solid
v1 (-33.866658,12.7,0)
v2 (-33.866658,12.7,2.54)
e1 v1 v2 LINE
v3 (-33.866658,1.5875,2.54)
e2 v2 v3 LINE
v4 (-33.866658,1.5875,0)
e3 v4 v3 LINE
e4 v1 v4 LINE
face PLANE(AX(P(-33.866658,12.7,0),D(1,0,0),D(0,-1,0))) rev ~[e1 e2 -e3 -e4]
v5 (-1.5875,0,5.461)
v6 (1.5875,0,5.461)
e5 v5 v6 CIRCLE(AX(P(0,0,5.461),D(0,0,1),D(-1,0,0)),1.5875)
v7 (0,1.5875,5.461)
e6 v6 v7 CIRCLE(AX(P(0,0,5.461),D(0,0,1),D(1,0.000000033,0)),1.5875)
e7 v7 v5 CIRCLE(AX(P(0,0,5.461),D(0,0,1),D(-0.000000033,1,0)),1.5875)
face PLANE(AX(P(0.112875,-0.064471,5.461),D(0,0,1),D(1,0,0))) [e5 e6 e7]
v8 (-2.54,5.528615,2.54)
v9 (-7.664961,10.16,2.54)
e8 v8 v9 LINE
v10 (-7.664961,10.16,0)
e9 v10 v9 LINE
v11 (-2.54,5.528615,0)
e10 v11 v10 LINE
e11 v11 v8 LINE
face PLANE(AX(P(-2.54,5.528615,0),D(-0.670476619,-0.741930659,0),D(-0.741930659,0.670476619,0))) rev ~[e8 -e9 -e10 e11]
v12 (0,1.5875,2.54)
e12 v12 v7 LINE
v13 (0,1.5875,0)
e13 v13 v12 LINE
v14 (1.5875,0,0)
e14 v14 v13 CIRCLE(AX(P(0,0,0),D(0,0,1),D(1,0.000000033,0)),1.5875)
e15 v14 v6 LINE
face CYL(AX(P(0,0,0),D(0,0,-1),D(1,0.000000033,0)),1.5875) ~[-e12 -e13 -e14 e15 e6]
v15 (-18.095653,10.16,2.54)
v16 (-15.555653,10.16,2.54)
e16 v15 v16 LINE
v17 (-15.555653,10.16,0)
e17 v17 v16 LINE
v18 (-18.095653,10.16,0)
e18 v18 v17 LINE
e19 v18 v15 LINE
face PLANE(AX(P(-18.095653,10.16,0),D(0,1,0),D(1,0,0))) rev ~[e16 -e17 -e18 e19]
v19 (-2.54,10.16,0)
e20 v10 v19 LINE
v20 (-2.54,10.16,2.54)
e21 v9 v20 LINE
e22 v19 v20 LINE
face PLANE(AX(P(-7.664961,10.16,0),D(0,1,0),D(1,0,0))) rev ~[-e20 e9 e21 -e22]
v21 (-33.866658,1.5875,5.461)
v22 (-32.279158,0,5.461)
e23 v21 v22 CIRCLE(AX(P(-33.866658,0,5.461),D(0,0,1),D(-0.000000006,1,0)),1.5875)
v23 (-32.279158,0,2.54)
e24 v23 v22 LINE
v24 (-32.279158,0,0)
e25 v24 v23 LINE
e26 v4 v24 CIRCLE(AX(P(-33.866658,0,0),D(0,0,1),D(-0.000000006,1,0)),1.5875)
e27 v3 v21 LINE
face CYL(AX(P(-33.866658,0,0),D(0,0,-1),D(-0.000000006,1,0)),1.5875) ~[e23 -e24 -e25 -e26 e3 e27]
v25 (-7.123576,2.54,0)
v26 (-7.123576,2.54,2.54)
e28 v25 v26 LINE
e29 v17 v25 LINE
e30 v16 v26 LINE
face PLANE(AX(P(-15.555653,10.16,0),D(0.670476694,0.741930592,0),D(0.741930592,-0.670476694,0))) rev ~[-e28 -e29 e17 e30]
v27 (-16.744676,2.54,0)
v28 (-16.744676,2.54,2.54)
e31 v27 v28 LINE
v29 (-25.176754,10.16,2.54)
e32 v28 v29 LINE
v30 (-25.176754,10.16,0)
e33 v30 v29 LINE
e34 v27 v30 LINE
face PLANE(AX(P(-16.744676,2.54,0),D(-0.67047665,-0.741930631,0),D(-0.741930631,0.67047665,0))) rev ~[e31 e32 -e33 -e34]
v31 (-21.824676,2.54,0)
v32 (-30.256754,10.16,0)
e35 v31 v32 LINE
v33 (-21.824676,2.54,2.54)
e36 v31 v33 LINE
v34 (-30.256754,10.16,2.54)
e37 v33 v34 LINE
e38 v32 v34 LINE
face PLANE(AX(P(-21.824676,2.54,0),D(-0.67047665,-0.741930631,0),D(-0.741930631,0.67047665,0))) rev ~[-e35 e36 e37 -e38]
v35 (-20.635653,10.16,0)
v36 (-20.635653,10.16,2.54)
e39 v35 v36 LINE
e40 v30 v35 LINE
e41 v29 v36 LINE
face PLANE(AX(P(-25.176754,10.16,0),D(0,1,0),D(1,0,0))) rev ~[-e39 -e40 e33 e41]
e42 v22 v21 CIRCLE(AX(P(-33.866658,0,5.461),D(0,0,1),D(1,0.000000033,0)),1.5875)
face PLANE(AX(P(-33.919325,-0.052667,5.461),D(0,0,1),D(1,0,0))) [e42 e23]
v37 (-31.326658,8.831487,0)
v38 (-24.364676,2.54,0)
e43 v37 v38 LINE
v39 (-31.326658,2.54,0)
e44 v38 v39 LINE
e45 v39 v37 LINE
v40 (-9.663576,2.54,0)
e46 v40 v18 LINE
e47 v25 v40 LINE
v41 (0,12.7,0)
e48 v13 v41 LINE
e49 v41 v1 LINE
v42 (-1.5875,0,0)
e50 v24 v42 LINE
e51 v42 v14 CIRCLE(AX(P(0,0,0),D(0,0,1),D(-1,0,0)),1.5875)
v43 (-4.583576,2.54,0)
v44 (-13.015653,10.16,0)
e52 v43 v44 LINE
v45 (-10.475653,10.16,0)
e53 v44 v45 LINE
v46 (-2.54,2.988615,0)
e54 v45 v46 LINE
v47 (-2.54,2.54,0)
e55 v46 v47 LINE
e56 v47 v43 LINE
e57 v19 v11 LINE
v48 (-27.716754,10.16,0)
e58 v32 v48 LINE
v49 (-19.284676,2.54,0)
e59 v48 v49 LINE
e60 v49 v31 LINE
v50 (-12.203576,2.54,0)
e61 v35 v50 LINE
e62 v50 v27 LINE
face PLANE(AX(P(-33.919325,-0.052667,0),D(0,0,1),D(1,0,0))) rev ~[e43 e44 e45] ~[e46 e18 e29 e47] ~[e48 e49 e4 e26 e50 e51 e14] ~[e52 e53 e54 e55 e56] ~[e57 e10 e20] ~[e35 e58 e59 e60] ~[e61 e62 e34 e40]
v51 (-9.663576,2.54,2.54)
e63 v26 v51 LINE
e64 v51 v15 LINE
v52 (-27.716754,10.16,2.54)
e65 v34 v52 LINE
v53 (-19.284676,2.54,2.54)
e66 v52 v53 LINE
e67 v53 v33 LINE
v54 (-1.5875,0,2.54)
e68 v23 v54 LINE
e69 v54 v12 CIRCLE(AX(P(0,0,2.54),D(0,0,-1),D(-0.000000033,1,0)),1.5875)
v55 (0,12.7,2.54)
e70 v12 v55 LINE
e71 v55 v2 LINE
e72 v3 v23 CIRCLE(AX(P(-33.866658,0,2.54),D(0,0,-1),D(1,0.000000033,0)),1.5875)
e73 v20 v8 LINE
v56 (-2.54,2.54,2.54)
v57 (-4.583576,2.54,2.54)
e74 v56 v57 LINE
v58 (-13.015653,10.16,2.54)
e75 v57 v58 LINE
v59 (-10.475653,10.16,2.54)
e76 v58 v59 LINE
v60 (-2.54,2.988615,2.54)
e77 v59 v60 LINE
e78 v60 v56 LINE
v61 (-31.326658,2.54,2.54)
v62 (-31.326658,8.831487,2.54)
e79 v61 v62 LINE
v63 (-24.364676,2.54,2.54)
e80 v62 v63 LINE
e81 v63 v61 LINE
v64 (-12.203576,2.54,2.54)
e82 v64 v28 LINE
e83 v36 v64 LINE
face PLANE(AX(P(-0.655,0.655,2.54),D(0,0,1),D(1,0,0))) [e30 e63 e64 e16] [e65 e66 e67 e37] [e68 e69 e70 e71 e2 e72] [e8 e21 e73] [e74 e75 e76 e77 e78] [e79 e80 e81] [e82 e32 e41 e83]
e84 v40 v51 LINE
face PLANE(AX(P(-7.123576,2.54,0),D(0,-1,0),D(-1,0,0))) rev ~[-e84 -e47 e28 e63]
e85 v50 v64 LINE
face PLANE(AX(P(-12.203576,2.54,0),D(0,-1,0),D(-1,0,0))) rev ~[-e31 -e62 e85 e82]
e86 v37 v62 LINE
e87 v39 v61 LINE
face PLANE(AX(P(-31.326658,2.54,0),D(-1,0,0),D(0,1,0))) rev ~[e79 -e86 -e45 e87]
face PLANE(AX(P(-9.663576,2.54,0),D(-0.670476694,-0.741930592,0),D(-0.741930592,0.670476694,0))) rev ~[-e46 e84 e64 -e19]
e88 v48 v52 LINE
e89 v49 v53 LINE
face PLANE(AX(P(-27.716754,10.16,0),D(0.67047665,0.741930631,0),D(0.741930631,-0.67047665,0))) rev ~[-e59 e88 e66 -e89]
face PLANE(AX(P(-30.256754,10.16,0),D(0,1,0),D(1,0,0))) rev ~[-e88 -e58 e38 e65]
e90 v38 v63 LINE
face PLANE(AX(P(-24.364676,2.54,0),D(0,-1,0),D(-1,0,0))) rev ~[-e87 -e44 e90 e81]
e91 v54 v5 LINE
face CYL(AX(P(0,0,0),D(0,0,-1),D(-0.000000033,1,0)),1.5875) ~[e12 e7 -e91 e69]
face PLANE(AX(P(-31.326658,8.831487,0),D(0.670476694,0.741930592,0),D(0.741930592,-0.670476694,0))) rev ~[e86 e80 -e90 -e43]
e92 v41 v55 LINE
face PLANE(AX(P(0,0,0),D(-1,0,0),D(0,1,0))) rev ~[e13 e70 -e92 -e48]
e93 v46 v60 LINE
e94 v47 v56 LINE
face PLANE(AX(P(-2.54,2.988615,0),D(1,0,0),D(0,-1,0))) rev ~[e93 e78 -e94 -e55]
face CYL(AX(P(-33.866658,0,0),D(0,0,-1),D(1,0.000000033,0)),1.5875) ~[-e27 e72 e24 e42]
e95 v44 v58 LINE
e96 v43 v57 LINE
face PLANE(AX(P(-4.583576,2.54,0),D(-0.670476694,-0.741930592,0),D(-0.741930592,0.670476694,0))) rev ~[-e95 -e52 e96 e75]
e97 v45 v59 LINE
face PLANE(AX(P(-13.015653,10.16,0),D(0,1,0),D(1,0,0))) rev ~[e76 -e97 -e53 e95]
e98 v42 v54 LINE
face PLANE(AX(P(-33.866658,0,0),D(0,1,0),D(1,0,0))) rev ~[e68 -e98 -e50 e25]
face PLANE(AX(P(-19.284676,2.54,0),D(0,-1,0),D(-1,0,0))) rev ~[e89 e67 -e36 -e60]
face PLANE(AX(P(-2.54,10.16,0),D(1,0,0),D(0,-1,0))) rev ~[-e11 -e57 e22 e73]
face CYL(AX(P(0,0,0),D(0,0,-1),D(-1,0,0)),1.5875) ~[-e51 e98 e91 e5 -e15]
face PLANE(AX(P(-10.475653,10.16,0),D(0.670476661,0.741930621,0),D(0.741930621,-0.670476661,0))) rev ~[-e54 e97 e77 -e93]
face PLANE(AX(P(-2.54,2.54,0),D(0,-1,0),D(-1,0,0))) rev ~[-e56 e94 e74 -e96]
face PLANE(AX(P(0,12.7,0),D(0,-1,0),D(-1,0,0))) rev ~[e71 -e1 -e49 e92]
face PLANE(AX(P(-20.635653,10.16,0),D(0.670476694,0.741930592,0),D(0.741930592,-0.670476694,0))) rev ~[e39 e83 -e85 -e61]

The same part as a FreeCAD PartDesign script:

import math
import FreeCAD as App
import Part
import Sketcher
Q = App.Units.Quantity

doc = App.newDocument("Part")
body = doc.addObject("PartDesign::Body", "Body")

# Sketch on XY plane
sketch1 = body.newObject("Sketcher::SketchObject", "Sketch")
sketch1.AttachmentSupport = (doc.getObject("XY_Plane"), [""])
sketch1.MapMode = "FlatFace"
sketch1.addGeometry([
    Part.LineSegment(App.Vector(0, 0, 0), App.Vector(0, 12.7, 0)),  # 0
    Part.LineSegment(App.Vector(0, 12.7, 0), App.Vector(-33.866658, 12.7, 0)),  # 1
    Part.LineSegment(App.Vector(-33.866658, 12.7, 0), App.Vector(-33.866658, 0, 0)),  # 2
    Part.LineSegment(App.Vector(-33.866658, 0, 0), App.Vector(0, 0, 0)),  # 3
    Part.LineSegment(App.Vector(-30.256754, 10.16, 0), App.Vector(-27.716754, 10.16, 0)),  # 4
    Part.LineSegment(App.Vector(-27.716754, 10.16, 0), App.Vector(-19.284676, 2.54, 0)),  # 5
    Part.LineSegment(App.Vector(-19.284676, 2.54, 0), App.Vector(-21.824676, 2.54, 0)),  # 6
    Part.LineSegment(App.Vector(-21.824676, 2.54, 0), App.Vector(-30.256754, 10.16, 0)),  # 7
    Part.LineSegment(App.Vector(-24.364676, 2.54, 0), App.Vector(-31.326658, 2.54, 0)),  # 8
    Part.LineSegment(App.Vector(-31.326658, 2.54, 0), App.Vector(-31.326658, 8.831487, 0)),  # 9
    Part.LineSegment(App.Vector(-31.326658, 8.831487, 0), App.Vector(-24.364676, 2.54, 0)),  # 10
    Part.LineSegment(App.Vector(-25.176754, 10.16, 0), App.Vector(-20.635653, 10.16, 0)),  # 11
    Part.LineSegment(App.Vector(-20.635653, 10.16, 0), App.Vector(-12.203576, 2.54, 0)),  # 12
    Part.LineSegment(App.Vector(-12.203576, 2.54, 0), App.Vector(-16.744676, 2.54, 0)),  # 13
    Part.LineSegment(App.Vector(-16.744676, 2.54, 0), App.Vector(-25.176754, 10.16, 0)),  # 14
    Part.LineSegment(App.Vector(-18.095653, 10.16, 0), App.Vector(-15.555653, 10.16, 0)),  # 15
    Part.LineSegment(App.Vector(-15.555653, 10.16, 0), App.Vector(-7.123576, 2.54, 0)),  # 16
    Part.LineSegment(App.Vector(-7.123576, 2.54, 0), App.Vector(-9.663576, 2.54, 0)),  # 17
    Part.LineSegment(App.Vector(-9.663576, 2.54, 0), App.Vector(-18.095653, 10.16, 0)),  # 18
    Part.LineSegment(App.Vector(-13.015653, 10.16, 0), App.Vector(-10.475653, 10.16, 0)),  # 19
    Part.LineSegment(App.Vector(-10.475653, 10.16, 0), App.Vector(-2.54, 2.988615, 0)),  # 20
    Part.LineSegment(App.Vector(-2.54, 2.988615, 0), App.Vector(-2.54, 2.54, 0)),  # 21
    Part.LineSegment(App.Vector(-2.54, 2.54, 0), App.Vector(-4.583576, 2.54, 0)),  # 22
    Part.LineSegment(App.Vector(-4.583576, 2.54, 0), App.Vector(-13.015653, 10.16, 0)),  # 23
    Part.LineSegment(App.Vector(-7.664961, 10.16, 0), App.Vector(-2.54, 10.16, 0)),  # 24
    Part.LineSegment(App.Vector(-2.54, 10.16, 0), App.Vector(-2.54, 5.528615, 0)),  # 25
    Part.LineSegment(App.Vector(-2.54, 5.528615, 0), App.Vector(-7.664961, 10.16, 0)),  # 26
], False)
sketch1.addConstraint([
    Sketcher.Constraint("Coincident", 0, 2, 1, 1),
    Sketcher.Constraint("Coincident", 1, 2, 2, 1),
    Sketcher.Constraint("Coincident", 2, 2, 3, 1),
    Sketcher.Constraint("Coincident", 3, 2, 0, 1),
    Sketcher.Constraint("Coincident", 4, 2, 5, 1),
    Sketcher.Constraint("Coincident", 5, 2, 6, 1),
    Sketcher.Constraint("Coincident", 6, 2, 7, 1),
    Sketcher.Constraint("Coincident", 7, 2, 4, 1),
    Sketcher.Constraint("Coincident", 8, 2, 9, 1),
    Sketcher.Constraint("Coincident", 9, 2, 10, 1),
    Sketcher.Constraint("Coincident", 10, 2, 8, 1),
    Sketcher.Constraint("Coincident", 11, 2, 12, 1),
    Sketcher.Constraint("Coincident", 12, 2, 13, 1),
    Sketcher.Constraint("Coincident", 13, 2, 14, 1),
    Sketcher.Constraint("Coincident", 14, 2, 11, 1),
    Sketcher.Constraint("Coincident", 15, 2, 16, 1),
    Sketcher.Constraint("Coincident", 16, 2, 17, 1),
    Sketcher.Constraint("Coincident", 17, 2, 18, 1),
    Sketcher.Constraint("Coincident", 18, 2, 15, 1),
    Sketcher.Constraint("Coincident", 19, 2, 20, 1),
    Sketcher.Constraint("Coincident", 20, 2, 21, 1),
    Sketcher.Constraint("Coincident", 21, 2, 22, 1),
    Sketcher.Constraint("Coincident", 22, 2, 23, 1),
    Sketcher.Constraint("Coincident", 23, 2, 19, 1),
    Sketcher.Constraint("Coincident", 24, 2, 25, 1),
    Sketcher.Constraint("Coincident", 25, 2, 26, 1),
    Sketcher.Constraint("Coincident", 26, 2, 24, 1),
    Sketcher.Constraint("Vertical", 0),
    Sketcher.Constraint("Horizontal", 1),
    Sketcher.Constraint("Vertical", 2),
    Sketcher.Constraint("Horizontal", 3),
    Sketcher.Constraint("Horizontal", 4),
    Sketcher.Constraint("Horizontal", 6),
    Sketcher.Constraint("Horizontal", 8),
    Sketcher.Constraint("Vertical", 9),
    Sketcher.Constraint("Horizontal", 11),
    Sketcher.Constraint("Horizontal", 13),
    Sketcher.Constraint("Horizontal", 15),
    Sketcher.Constraint("Horizontal", 17),
    Sketcher.Constraint("Horizontal", 19),
    Sketcher.Constraint("Vertical", 21),
    Sketcher.Constraint("Horizontal", 22),
    Sketcher.Constraint("Horizontal", 24),
    Sketcher.Constraint("Vertical", 25),
    Sketcher.Constraint("Coincident", 3, 2, -1, 1),
    Sketcher.Constraint("Parallel", 5, 7),
    Sketcher.Constraint("Parallel", 7, 10),
    Sketcher.Constraint("Parallel", 10, 12),
    Sketcher.Constraint("Parallel", 12, 14),
    Sketcher.Constraint("Parallel", 14, 16),
    Sketcher.Constraint("Parallel", 16, 18),
    Sketcher.Constraint("Parallel", 18, 20),
    Sketcher.Constraint("Parallel", 20, 23),
    Sketcher.Constraint("Parallel", 23, 26),
    Sketcher.Constraint("Horizontal", 6, 2, 8, 2),
    Sketcher.Constraint("Horizontal", 7, 2, 11, 2),
    Sketcher.Constraint("Horizontal", 10, 2, 12, 2),
    Sketcher.Constraint("Horizontal", 14, 2, 15, 2),
    Sketcher.Constraint("Horizontal", 13, 2, 16, 2),
    Sketcher.Constraint("Horizontal", 18, 2, 19, 2),
    Sketcher.Constraint("Horizontal", 17, 2, 21, 2),
    Sketcher.Constraint("Horizontal", 23, 2, 24, 2),
    Sketcher.Constraint("Vertical", 21, 2, 24, 2),
    Sketcher.Constraint("Equal", 6, 15),
    Sketcher.Constraint("Equal", 17, 19),
    Sketcher.Constraint("DistanceX", 4, 1, 4, 2, Q("0.1 in")),
    Sketcher.Constraint("DistanceY", 0, 1, 0, 2, Q("0.5 in")),
    Sketcher.Constraint("DistanceY", -1, 1, 4, 2, Q("0.4 in")),
    Sketcher.Constraint("DistanceY", -1, 1, 5, 2, Q("0.1 in")),
    Sketcher.Constraint("DistanceX", 20, 2, -1, 1, Q("0.1 in")),
    Sketcher.Constraint("DistanceX", 2, 2, 8, 2, Q("0.1 in")),
    Sketcher.Constraint("DistanceX", 10, 2, 6, 2, Q("0.1 in")),
    Sketcher.Constraint("DistanceX", 5, 2, 13, 2, Q("0.1 in")),
    Sketcher.Constraint("DistanceX", 11, 2, 15, 2, Q("0.2 in")),
    Sketcher.Constraint("DistanceX", 15, 2, 19, 2, Q("0.2 in")),
    Sketcher.Constraint("DistanceY", 20, 2, 25, 2, Q("0.1 in")),
    Sketcher.Constraint("DistanceX", 11, 1, 11, 2, 4.541101),
    Sketcher.Constraint("Distance", 26, 6.907601),
    Sketcher.Constraint("DistanceX", 8, 2, 8, 1, 6.961982),
    Sketcher.Constraint("DistanceX", 24, 1, 24, 2, 5.124961),
])
pad1 = body.newObject("PartDesign::Pad", "Pad")
pad1.Profile = sketch1
pad1.Length = Q("0.1 in")

# Sketch on XY plane
sketch2 = body.newObject("Sketcher::SketchObject", "Sketch001")
sketch2.AttachmentSupport = (doc.getObject("XY_Plane"), [""])
sketch2.MapMode = "FlatFace"
sketch2.addGeometry([
    Part.ArcOfCircle(Part.Circle(App.Vector(-33.866658, 0, 0), App.Vector(0, 0, 1), 1.5875), math.radians(90), math.radians(360)),  # 0
    Part.ArcOfCircle(Part.Circle(App.Vector(-33.866658, 0, 0), App.Vector(0, 0, 1), 1.5875), math.radians(0.000002), math.radians(89.999998)),  # 1
    Part.ArcOfCircle(Part.Circle(App.Vector(0, 0, 0), App.Vector(0, 0, 1), 1.5875), math.radians(0.000002), math.radians(89.999998)),  # 2
    Part.ArcOfCircle(Part.Circle(App.Vector(0, 0, 0), App.Vector(0, 0, 1), 1.5875), math.radians(90.000002), math.radians(179.999998)),  # 3
    Part.ArcOfCircle(Part.Circle(App.Vector(0, 0, 0), App.Vector(0, 0, 1), 1.5875), math.radians(180), math.radians(360)),  # 4
], False)
sketch2.addConstraint([
    Sketcher.Constraint("Tangent", 0, 1, 1, 2),
    Sketcher.Constraint("Coincident", 1, 1, 0, 2),
    Sketcher.Constraint("Tangent", 2, 2, 3, 1),
    Sketcher.Constraint("Tangent", 3, 2, 4, 1),
    Sketcher.Constraint("Tangent", 4, 2, 2, 1),
    Sketcher.Constraint("Coincident", 2, 3, -1, 1),
    Sketcher.Constraint("Equal", 1, 2),
    Sketcher.Constraint("PointOnObject", 0, 3, -1),
    Sketcher.Constraint("PointOnObject", 1, 1, -1),
    Sketcher.Constraint("PointOnObject", 2, 2, -2),
    Sketcher.Constraint("PointOnObject", 3, 2, -1),
    Sketcher.Constraint("PointOnObject", 4, 2, -1),
    Sketcher.Constraint("Vertical", 1, 3, 0, 1),
    Sketcher.Constraint("Radius", 0, Q("0.0625 in")),
    Sketcher.Constraint("DistanceX", 1, 3, -1, 1, 33.866658),
])
pad2 = body.newObject("PartDesign::Pad", "Pad001")
pad2.Profile = sketch2
pad2.Length = Q("0.215 in")

doc.recompute()
